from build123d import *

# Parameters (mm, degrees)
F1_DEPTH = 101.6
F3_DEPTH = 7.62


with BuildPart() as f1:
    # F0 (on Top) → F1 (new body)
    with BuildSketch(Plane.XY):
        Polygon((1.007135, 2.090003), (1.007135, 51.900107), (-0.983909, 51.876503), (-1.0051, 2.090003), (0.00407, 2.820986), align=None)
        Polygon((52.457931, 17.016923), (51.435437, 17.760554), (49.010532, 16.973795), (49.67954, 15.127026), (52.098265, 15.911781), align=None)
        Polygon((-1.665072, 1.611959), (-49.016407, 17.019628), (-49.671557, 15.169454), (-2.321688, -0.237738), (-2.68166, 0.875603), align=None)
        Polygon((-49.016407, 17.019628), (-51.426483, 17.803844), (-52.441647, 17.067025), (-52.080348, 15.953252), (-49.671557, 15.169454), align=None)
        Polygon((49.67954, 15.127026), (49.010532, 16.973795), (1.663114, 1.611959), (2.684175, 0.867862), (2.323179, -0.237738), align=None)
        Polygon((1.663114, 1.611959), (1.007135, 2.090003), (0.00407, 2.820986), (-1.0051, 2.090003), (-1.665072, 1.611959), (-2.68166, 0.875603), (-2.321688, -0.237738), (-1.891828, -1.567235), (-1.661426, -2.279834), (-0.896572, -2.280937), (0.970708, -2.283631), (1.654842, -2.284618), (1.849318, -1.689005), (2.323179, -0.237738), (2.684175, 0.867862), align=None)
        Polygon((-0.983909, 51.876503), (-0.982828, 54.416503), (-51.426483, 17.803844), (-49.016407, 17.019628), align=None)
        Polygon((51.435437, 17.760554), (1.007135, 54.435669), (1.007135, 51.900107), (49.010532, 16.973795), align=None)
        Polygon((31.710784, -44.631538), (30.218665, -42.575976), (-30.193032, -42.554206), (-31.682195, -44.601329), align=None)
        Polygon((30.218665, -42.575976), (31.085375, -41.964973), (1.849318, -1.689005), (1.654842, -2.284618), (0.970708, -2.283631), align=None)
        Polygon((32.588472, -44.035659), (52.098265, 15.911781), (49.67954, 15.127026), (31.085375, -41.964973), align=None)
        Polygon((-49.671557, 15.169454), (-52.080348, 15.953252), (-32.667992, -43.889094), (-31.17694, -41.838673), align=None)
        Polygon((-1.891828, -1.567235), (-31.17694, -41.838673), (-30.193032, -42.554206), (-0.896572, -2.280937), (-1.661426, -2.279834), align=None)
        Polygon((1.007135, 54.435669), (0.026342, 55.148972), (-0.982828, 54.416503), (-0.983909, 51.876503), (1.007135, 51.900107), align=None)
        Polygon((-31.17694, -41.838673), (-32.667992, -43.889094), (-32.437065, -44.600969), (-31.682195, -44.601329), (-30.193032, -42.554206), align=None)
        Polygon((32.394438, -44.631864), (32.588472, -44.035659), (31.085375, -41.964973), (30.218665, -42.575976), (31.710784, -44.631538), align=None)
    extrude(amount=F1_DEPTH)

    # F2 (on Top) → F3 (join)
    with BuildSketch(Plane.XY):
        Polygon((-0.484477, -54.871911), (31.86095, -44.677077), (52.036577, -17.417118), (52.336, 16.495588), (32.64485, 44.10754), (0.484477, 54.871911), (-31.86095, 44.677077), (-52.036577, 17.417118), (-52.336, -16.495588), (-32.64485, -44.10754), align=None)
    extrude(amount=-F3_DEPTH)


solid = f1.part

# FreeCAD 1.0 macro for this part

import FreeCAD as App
import Part
import Sketcher
from FreeCAD import Vector
Q = App.Units.Quantity


def add_polygon(sketch, points):
    """Adds a closed chain of lines whose ends are joined by coincident constraints."""
    first, n = sketch.GeometryCount, len(points)
    for a, b in zip(points, points[1:] + points[:1]):
        sketch.addGeometry(Part.LineSegment(App.Vector(*a, 0), App.Vector(*b, 0)), False)
    for i in range(n):
        sketch.addConstraint(Sketcher.Constraint("Coincident", first + i, 2, first + (i + 1) % n, 1))

doc = App.newDocument("Part")
body = doc.addObject("PartDesign::Body", "Body")

# Sketch on XY plane
sketch1 = doc.addObject("Sketcher::SketchObject", "Sketch")
body.addObject(sketch1)
sketch1.AttachmentSupport = (doc.XY_Plane, [""])
sketch1.MapMode = "FlatFace"
add_polygon(sketch1, [(-31.682195, -44.601329), (31.710784, -44.631538), (32.394438, -44.631864), (32.588472, -44.035659), (52.098265, 15.911781), (52.457931, 17.016923), (51.435437, 17.760554), (1.007135, 54.435669), (0.026342, 55.148972), (-0.982828, 54.416503), (-51.426483, 17.803844), (-52.441647, 17.067025), (-52.080348, 15.953252), (-32.667992, -43.889094), (-32.437065, -44.600969)])  # lines 0-14
add_polygon(sketch1, [(-1.891828, -1.567235), (-31.17694, -41.838673), (-49.671557, 15.169454), (-2.321688, -0.237738)])  # lines 15-18
add_polygon(sketch1, [(0.970708, -2.283631), (30.218665, -42.575976), (-30.193032, -42.554206), (-0.896572, -2.280937)])  # lines 19-22
add_polygon(sketch1, [(49.67954, 15.127026), (31.085375, -41.964973), (1.849318, -1.689005), (2.323179, -0.237738)])  # lines 23-26
add_polygon(sketch1, [(-49.016407, 17.019628), (-0.983909, 51.876503), (-1.0051, 2.090003), (-1.665072, 1.611959)])  # lines 27-30
add_polygon(sketch1, [(1.007135, 2.090003), (1.007135, 51.900107), (49.010532, 16.973795), (1.663114, 1.611959)])  # lines 31-34
sketch1.addConstraint(Sketcher.Constraint("Vertical", 31))
sketch1.addConstraint(Sketcher.Constraint("DistanceY", 27, 2, 8, 2, Q("0.1 in")))
sketch1.addConstraint(Sketcher.Constraint("Distance", 20, Q("60.411701 mm")))
sketch1.addConstraint(Sketcher.Constraint("DistanceX", 28, 2, -1, 1, Q("1.0051 mm")))
sketch1.addConstraint(Sketcher.Constraint("DistanceX", 1, 2, 5, 2, Q("19.040999 mm")))
sketch1.addConstraint(Sketcher.Constraint("DistanceX", 10, 2, 11, 2, Q("0.361299 mm")))
sketch1.addConstraint(Sketcher.Constraint("DistanceY", 16, 2, 11, 2, Q("0.783798 mm")))
sketch1.addConstraint(Sketcher.Constraint("DistanceY", 21, 2, 17, 2, Q("2.043199 mm")))
sketch1.addConstraint(Sketcher.Constraint("DistanceY", 21, 2, 25, 2, Q("2.043199 mm")))
sketch1.addConstraint(Sketcher.Constraint("DistanceX", 29, 2, 21, 2, Q("0.7685 mm")))
sketch1.addConstraint(Sketcher.Constraint("DistanceX", 32, 2, 4, 2, Q("3.447399 mm")))
sketch1.addConstraint(Sketcher.Constraint("Distance", 3, Q("63.042268 mm")))
sketch1.addConstraint(Sketcher.Constraint("Distance", 5, Q("1.264311 mm")))
sketch1.addConstraint(Sketcher.Constraint("Distance", 8, Q("1.24697 mm")))
sketch1.addConstraint(Sketcher.Constraint("Distance", 11, Q("1.170909 mm")))
sketch1.addConstraint(Sketcher.Constraint("Distance", 12, Q("62.912208 mm")))
sketch1.addConstraint(Sketcher.Constraint("Distance", 14, Q("0.75487 mm")))
sketch1.addConstraint(Sketcher.Constraint("Distance", 15, Q("49.793639 mm")))
sketch1.addConstraint(Sketcher.Constraint("Distance", 17, Q("49.79349 mm")))
sketch1.addConstraint(Sketcher.Constraint("Distance", 22, Q("1.867282 mm")))
sketch1.addConstraint(Sketcher.Constraint("Distance", 24, Q("49.76847 mm")))
sketch1.addConstraint(Sketcher.Constraint("Distance", 25, Q("1.52667 mm")))
sketch1.addConstraint(Sketcher.Constraint("Distance", 30, Q("49.795032 mm")))
sketch1.addConstraint(Sketcher.Constraint("Distance", 32, Q("59.364749 mm")))
sketch1.addConstraint(Sketcher.Constraint("DistanceY", 31, 1, 31, 2, Q("49.810104 mm")))
sketch1.addConstraint(Sketcher.Constraint("DistanceY", 2, 2, -1, 1, Q("44.035659 mm")))
sketch1.addConstraint(Sketcher.Constraint("DistanceY", -1, 1, 3, 2, Q("15.911781 mm")))
sketch1.addConstraint(Sketcher.Constraint("DistanceX", -1, 1, 4, 2, Q("52.457931 mm")))
sketch1.addConstraint(Sketcher.Constraint("DistanceY", -1, 1, 6, 2, Q("54.435669 mm")))
sketch1.addConstraint(Sketcher.Constraint("DistanceX", 8, 2, -1, 1, Q("0.982828 mm")))
sketch1.addConstraint(Sketcher.Constraint("DistanceX", 12, 2, -1, 1, Q("32.667992 mm")))
sketch1.addConstraint(Sketcher.Constraint("DistanceY", 13, 2, -1, 1, Q("44.600969 mm")))
sketch1.addConstraint(Sketcher.Constraint("DistanceY", 14, 2, -1, 1, Q("44.601329 mm")))
sketch1.addConstraint(Sketcher.Constraint("DistanceX", 15, 2, -1, 1, Q("31.17694 mm")))
sketch1.addConstraint(Sketcher.Constraint("DistanceX", 17, 2, -1, 1, Q("2.321688 mm")))
sketch1.addConstraint(Sketcher.Constraint("DistanceX", 18, 2, -1, 1, Q("1.891828 mm")))
sketch1.addConstraint(Sketcher.Constraint("DistanceX", 20, 2, -1, 1, Q("30.193032 mm")))
sketch1.addConstraint(Sketcher.Constraint("DistanceX", -1, 1, 22, 2, Q("0.970708 mm")))
sketch1.addConstraint(Sketcher.Constraint("DistanceY", 22, 2, -1, 1, Q("2.283631 mm")))
sketch1.addConstraint(Sketcher.Constraint("DistanceX", -1, 1, 25, 2, Q("2.323179 mm")))
sketch1.addConstraint(Sketcher.Constraint("DistanceX", -1, 1, 26, 2, Q("49.67954 mm")))
sketch1.addConstraint(Sketcher.Constraint("DistanceX", 27, 2, -1, 1, Q("0.983909 mm")))
sketch1.addConstraint(Sketcher.Constraint("DistanceY", -1, 1, 29, 2, Q("1.611959 mm")))
sketch1.addConstraint(Sketcher.Constraint("DistanceY", -1, 1, 30, 2, Q("17.019628 mm")))
sketch1.addConstraint(Sketcher.Constraint("DistanceY", -1, 1, 33, 2, Q("1.611959 mm")))
sketch1.addConstraint(Sketcher.Constraint("DistanceX", 0, 2, 2, 2, Q("0.877688 mm")))
sketch1.addConstraint(Sketcher.Constraint("DistanceY", 0, 2, 2, 2, Q("0.595879 mm")))
sketch1.addConstraint(Sketcher.Constraint("DistanceY", 3, 2, 4, 2, Q("1.105142 mm")))
sketch1.addConstraint(Sketcher.Constraint("DistanceX", 2, 2, 4, 2, Q("19.869459 mm")))
sketch1.addConstraint(Sketcher.Constraint("DistanceY", 4, 2, 5, 2, Q("0.743631 mm")))
sketch1.addConstraint(Sketcher.Constraint("DistanceX", 6, 2, 3, 2, Q("51.09113 mm")))
sketch1.addConstraint(Sketcher.Constraint("DistanceX", 7, 2, 4, 2, Q("52.431589 mm")))
sketch1.addConstraint(Sketcher.Constraint("DistanceY", 4, 2, 7, 2, Q("38.132049 mm")))
sketch1.addConstraint(Sketcher.Constraint("DistanceY", 9, 2, 8, 2, Q("36.612659 mm")))
sketch1.addConstraint(Sketcher.Constraint("DistanceX", 9, 2, 5, 2, Q("102.86192 mm")))
sketch1.addConstraint(Sketcher.Constraint("DistanceY", 10, 2, 9, 2, Q("0.736819 mm")))
sketch1.addConstraint(Sketcher.Constraint("DistanceX", 10, 2, 8, 2, Q("51.458819 mm")))
sketch1.addConstraint(Sketcher.Constraint("DistanceY", 1, 2, 12, 2, Q("0.74277 mm")))
sketch1.addConstraint(Sketcher.Constraint("DistanceX", 13, 2, 0, 2, Q("64.147849 mm")))
sketch1.addConstraint(Sketcher.Constraint("DistanceY", 12, 2, 15, 2, Q("2.050421 mm")))
sketch1.addConstraint(Sketcher.Constraint("DistanceX", 11, 2, 16, 2, Q("2.408791 mm")))
sketch1.addConstraint(Sketcher.Constraint("DistanceY", 1, 2, 19, 2, Q("2.055888 mm")))
sketch1.addConstraint(Sketcher.Constraint("DistanceY", 20, 2, 18, 2, Q("40.986971 mm")))
sketch1.addConstraint(Sketcher.Constraint("DistanceX", 19, 2, 23, 2, Q("0.86671 mm")))
sketch1.addConstraint(Sketcher.Constraint("DistanceY", 1, 2, 23, 2, Q("2.666891 mm")))
sketch1.addConstraint(Sketcher.Constraint("DistanceY", 24, 2, 26, 2, Q("16.816031 mm")))
sketch1.addConstraint(Sketcher.Constraint("DistanceY", 17, 2, 28, 2, Q("2.327741 mm")))
sketch1.addConstraint(Sketcher.Constraint("DistanceY", 31, 2, 6, 2, Q("2.535562 mm")))
sketch1.addConstraint(Sketcher.Constraint("DistanceY", 26, 2, 32, 2, Q("1.846769 mm")))
sketch1.addConstraint(Sketcher.Constraint("DistanceX", 34, 2, 33, 2, Q("0.655979 mm")))
pad1 = doc.addObject("PartDesign::Pad", "Pad")
body.addObject(pad1)
pad1.Profile = sketch1
pad1.Length = Q("4 in")

# Sketch on XY plane
sketch2 = doc.addObject("Sketcher::SketchObject", "Sketch001")
body.addObject(sketch2)
sketch2.AttachmentSupport = (doc.XY_Plane, [""])
sketch2.MapMode = "FlatFace"
add_polygon(sketch2, [(0, -55), (32, -45), (52, -17), (52, 16), (33, 44), (0, 55), (-32, 45), (-52, 17), (-52, -16), (-33, -44)])  # lines 0-9
sketch2.addConstraint(Sketcher.Constraint("Symmetric", 0, 2, 5, 2, -1, 1))
sketch2.addConstraint(Sketcher.Constraint("Symmetric", 1, 2, 6, 2, -1, 1))
sketch2.addConstraint(Sketcher.Constraint("Symmetric", 2, 2, 7, 2, -1, 1))
sketch2.addConstraint(Sketcher.Constraint("Symmetric", 3, 2, 8, 2, -1, 1))
sketch2.addConstraint(Sketcher.Constraint("Symmetric", 4, 2, 9, 2, -1, 1))
sketch2.addConstraint(Sketcher.Constraint("Equal", 0, 1))
sketch2.addConstraint(Sketcher.Constraint("Equal", 1, 2))
sketch2.addConstraint(Sketcher.Constraint("Equal", 2, 3))
sketch2.addConstraint(Sketcher.Constraint("Equal", 3, 4))
sketch2.addConstraint(Sketcher.Constraint("DistanceX", -1, 1, 2, 2, Q("52.336 mm")))
sketch2.addConstraint(Sketcher.Constraint("DistanceX", 0, 2, 3, 2, Q("0.7839 mm")))
sketch2.addConstraint(Sketcher.Constraint("DistanceX", 4, 2, 1, 2, Q("51.5521 mm")))
sketch2.addConstraint(Sketcher.Constraint("DistanceX", 5, 2, 3, 2, Q("64.5058 mm")))
sketch2.addConstraint(Sketcher.Constraint("DistanceY", 7, 2, 4, 2, Q("71.367499 mm")))
sketch2.addConstraint(Sketcher.Constraint("DistanceY", -1, 1, 2, 2, Q("16.495588 mm")))
pad2 = doc.addObject("PartDesign::Pad", "Pad001")
body.addObject(pad2)
pad2.Profile = sketch2
pad2.Length = Q("0.3 in")
pad2.Reversed = True

doc.recompute()
